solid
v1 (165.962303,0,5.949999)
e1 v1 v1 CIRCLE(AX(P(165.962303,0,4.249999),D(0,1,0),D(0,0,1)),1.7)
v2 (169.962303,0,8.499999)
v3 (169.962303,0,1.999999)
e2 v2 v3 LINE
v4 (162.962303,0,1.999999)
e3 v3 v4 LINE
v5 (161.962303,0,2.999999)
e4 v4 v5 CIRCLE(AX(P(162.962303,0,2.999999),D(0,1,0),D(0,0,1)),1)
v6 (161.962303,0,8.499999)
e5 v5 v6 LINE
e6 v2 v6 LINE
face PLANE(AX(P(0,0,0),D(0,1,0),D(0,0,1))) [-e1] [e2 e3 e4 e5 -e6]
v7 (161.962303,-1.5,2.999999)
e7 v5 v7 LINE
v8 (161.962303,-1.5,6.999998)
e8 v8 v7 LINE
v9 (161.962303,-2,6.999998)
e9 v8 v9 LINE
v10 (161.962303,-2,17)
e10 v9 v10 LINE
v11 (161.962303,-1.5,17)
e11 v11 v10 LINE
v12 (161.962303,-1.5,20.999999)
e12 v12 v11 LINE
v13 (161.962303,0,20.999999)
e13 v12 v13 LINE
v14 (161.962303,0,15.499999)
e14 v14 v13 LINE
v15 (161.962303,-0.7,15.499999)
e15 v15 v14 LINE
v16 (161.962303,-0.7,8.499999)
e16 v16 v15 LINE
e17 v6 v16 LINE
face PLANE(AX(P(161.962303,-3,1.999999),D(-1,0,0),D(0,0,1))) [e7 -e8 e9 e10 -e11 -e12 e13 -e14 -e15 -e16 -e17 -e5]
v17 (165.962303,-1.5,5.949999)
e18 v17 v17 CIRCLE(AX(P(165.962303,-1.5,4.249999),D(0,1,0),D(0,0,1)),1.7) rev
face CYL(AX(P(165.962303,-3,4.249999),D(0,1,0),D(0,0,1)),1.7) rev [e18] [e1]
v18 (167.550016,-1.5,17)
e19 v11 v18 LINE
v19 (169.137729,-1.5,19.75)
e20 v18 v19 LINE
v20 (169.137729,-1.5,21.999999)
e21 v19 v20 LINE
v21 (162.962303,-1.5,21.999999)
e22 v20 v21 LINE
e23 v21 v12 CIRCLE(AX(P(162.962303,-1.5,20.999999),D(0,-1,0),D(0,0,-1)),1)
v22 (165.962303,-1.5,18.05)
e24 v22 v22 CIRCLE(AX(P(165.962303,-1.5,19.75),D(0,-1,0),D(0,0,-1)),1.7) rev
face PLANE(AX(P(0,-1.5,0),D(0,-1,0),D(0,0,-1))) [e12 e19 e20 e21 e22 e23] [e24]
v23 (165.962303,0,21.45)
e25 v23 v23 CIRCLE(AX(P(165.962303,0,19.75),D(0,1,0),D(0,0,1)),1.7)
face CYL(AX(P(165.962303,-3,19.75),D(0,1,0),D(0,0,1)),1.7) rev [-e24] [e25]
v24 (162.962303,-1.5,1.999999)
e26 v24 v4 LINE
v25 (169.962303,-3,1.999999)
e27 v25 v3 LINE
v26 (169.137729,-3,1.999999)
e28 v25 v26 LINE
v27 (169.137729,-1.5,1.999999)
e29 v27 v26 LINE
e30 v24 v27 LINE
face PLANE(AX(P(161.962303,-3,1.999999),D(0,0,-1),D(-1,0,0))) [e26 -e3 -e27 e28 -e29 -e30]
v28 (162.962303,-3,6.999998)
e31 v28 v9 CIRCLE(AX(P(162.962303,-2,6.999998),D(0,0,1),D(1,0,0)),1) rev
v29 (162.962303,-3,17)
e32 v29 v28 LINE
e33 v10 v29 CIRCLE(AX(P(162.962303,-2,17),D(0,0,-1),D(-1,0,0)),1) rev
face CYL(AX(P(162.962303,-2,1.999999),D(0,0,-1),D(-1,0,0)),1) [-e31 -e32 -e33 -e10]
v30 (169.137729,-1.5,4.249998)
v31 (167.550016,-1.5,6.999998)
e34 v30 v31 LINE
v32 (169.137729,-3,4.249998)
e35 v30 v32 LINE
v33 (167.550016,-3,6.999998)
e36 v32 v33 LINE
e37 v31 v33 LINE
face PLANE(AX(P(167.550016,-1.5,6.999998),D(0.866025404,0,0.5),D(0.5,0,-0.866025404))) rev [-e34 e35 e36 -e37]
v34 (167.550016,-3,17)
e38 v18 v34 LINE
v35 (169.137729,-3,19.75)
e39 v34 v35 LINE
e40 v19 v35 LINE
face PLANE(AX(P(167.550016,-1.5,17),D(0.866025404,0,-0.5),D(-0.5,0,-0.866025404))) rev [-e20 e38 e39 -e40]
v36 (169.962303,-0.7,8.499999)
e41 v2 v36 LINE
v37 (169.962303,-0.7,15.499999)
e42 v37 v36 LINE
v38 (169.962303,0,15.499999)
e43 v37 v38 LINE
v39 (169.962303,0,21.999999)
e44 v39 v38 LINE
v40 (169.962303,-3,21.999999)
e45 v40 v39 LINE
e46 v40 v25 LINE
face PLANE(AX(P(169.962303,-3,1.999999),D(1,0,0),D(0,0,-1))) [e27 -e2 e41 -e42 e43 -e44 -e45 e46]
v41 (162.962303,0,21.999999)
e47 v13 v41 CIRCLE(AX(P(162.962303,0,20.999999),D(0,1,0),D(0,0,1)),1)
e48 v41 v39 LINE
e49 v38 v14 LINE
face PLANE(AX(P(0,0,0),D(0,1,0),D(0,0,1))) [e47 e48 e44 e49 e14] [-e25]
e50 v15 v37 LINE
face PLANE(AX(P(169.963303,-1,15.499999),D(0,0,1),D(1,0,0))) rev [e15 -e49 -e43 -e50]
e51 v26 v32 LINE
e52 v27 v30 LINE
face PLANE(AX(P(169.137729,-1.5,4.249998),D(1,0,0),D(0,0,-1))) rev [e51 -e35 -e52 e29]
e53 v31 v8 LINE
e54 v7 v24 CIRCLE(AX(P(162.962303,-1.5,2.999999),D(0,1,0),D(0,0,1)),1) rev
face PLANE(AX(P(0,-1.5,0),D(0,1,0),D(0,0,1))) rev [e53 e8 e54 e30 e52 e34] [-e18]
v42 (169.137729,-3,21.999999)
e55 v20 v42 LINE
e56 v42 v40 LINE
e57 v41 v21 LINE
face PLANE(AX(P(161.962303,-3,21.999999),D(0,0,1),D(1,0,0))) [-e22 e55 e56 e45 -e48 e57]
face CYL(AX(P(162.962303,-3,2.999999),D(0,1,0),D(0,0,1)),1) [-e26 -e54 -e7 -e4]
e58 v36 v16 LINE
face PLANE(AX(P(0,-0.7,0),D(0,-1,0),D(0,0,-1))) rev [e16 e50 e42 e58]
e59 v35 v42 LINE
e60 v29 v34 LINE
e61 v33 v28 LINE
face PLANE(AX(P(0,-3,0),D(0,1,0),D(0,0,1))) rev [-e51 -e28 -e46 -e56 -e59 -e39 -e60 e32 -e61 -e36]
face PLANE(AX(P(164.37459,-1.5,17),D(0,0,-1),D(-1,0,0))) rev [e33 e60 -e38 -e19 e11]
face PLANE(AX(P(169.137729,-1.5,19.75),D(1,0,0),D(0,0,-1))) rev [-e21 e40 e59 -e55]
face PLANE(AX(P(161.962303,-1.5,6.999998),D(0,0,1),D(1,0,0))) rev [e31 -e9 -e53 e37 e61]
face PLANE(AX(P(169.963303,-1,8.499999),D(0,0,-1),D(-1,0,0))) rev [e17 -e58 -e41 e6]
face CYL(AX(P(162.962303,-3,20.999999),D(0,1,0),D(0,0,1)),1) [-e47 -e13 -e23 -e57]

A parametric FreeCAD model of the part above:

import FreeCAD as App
import Part
import Sketcher

V = App.Vector
Q = App.Units.Quantity


def edges_at(feature, points):
    """Names of the edges that pass closest to the given points."""
    edges = feature.Shape.Edges
    near = lambda p: min(range(len(edges)), key=lambda i: edges[i].distToShape(Part.Vertex(*p))[0])
    return sorted({f"Edge{near(p) + 1}" for p in points})


def add_polygon(sketch, points):
    """Adds a closed chain of lines whose ends are joined by coincident constraints."""
    first, n = sketch.GeometryCount, len(points)
    for a, b in zip(points, points[1:] + points[:1]):
        sketch.addGeometry(Part.LineSegment(App.Vector(*a, 0), App.Vector(*b, 0)), False)
    for i in range(n):
        sketch.addConstraint(Sketcher.Constraint("Coincident", first + i, 2, first + (i + 1) % n, 1))

doc = App.newDocument("Part")
body = doc.addObject("PartDesign::Body", "Body")

# Sketch on XZ plane
sketch1 = body.newObject("Sketcher::SketchObject", "Sketch")
sketch1.AttachmentSupport = (doc.getObject("XZ_Plane"), [""])
sketch1.MapMode = "FlatFace"
add_polygon(sketch1, [(161.962303, 1.999999), (161.962303, 21.999999), (169.962303, 21.999999), (169.962303, 1.999999)])  # lines 0-3
sketch1.addGeometry(Part.Circle(V(165.962303, 19.75, 0), V(0, 0, 1), 1.7), False)  # 4
sketch1.addGeometry(Part.Circle(V(165.962303, 4.249999, 0), V(0, 0, 1), 1.7), False)  # 5
sketch1.addConstraint(Sketcher.Constraint("Vertical", 0))
sketch1.addConstraint(Sketcher.Constraint("Horizontal", 1))
sketch1.addConstraint(Sketcher.Constraint("Vertical", 2))
sketch1.addConstraint(Sketcher.Constraint("Horizontal", 3))
sketch1.addConstraint(Sketcher.Constraint("Equal", 4, 5))
sketch1.addConstraint(Sketcher.Constraint("Vertical", 4, 3, 5, 3))
sketch1.addConstraint(Sketcher.Constraint("Diameter", 4, Q("3.4 mm")))
sketch1.addConstraint(Sketcher.Constraint("DistanceX", 1, 1, 1, 2, Q("8 mm")))
sketch1.addConstraint(Sketcher.Constraint("DistanceY", 0, 1, 0, 2, Q("20 mm")))
sketch1.addConstraint(Sketcher.Constraint("DistanceY", -1, 1, 0, 2, Q("21.999999 mm")))
sketch1.addConstraint(Sketcher.Constraint("DistanceX", 0, 2, 4, 3, Q("4 mm")))
sketch1.addConstraint(Sketcher.Constraint("DistanceY", 5, 3, 4, 3, Q("15.500001 mm")))
sketch1.addConstraint(Sketcher.Constraint("DistanceY", -1, 1, 4, 3, Q("19.75 mm")))
sketch1.addConstraint(Sketcher.Constraint("DistanceX", -1, 1, 4, 3, Q("165.962303 mm")))
pad1 = body.newObject("PartDesign::Pad", "Pad")
pad1.Profile = sketch1
pad1.Length = 3

# Sketch on XZ plane
sketch2 = body.newObject("Sketcher::SketchObject", "Sketch001")
sketch2.AttachmentSupport = (doc.getObject("XZ_Plane"), [""])
sketch2.MapMode = "FlatFace"
sketch2.AttachmentOffset = App.Placement(V(0, 0, 3), App.Rotation())
add_polygon(sketch2, [(167.550016, 17), (169.137729, 19.75), (169.137729, 21.999999), (161.962303, 21.999999), (161.962303, 17)])  # lines 0-4
add_polygon(sketch2, [(167.550016, 6.999998), (161.962303, 6.999998), (161.962303, 1.999999), (169.137729, 1.999999), (169.137729, 4.249998)])  # lines 5-9
sketch2.addConstraint(Sketcher.Constraint("Vertical", 1))
sketch2.addConstraint(Sketcher.Constraint("Horizontal", 2))
sketch2.addConstraint(Sketcher.Constraint("Vertical", 3))
sketch2.addConstraint(Sketcher.Constraint("Horizontal", 4))
sketch2.addConstraint(Sketcher.Constraint("Horizontal", 5))
sketch2.addConstraint(Sketcher.Constraint("Vertical", 6))
sketch2.addConstraint(Sketcher.Constraint("Horizontal", 7))
sketch2.addConstraint(Sketcher.Constraint("Vertical", 8))
sketch2.addConstraint(Sketcher.Constraint("Vertical", 3, 2, 5, 2))
sketch2.addConstraint(Sketcher.Constraint("Vertical", 1, 2, 7, 2))
sketch2.addConstraint(Sketcher.Constraint("Vertical", 4, 2, 9, 2))
sketch2.addConstraint(Sketcher.Constraint("Equal", 3, 6))
sketch2.addConstraint(Sketcher.Constraint("Equal", 1, 8))
sketch2.addConstraint(Sketcher.Constraint("DistanceY", 3, 2, 3, 1, Q("4.999999 mm")))
sketch2.addConstraint(Sketcher.Constraint("Angle", 0, Q("60 deg")))
sketch2.addConstraint(Sketcher.Constraint("DistanceY", -1, 1, 1, 2, Q("21.999999 mm")))
sketch2.addConstraint(Sketcher.Constraint("DistanceY", -1, 1, 6, 2, Q("1.999999 mm")))
sketch2.addConstraint(Sketcher.Constraint("DistanceY", 1, 1, 1, 2, Q("2.249999 mm")))
sketch2.addConstraint(Sketcher.Constraint("DistanceX", 2, 2, 2, 1, Q("7.175426 mm")))
sketch2.addConstraint(Sketcher.Constraint("DistanceX", -1, 1, 0, 2, Q("169.137729 mm")))
pocket1 = body.newObject("PartDesign::Pocket", "Pocket")
pocket1.Profile = sketch2
pocket1.Length = 1.5

# Sketch on YZ plane
sketch3 = body.newObject("Sketcher::SketchObject", "Sketch002")
sketch3.AttachmentSupport = (doc.getObject("YZ_Plane"), [""])
sketch3.MapMode = "FlatFace"
sketch3.AttachmentOffset = App.Placement(V(0, 0, 161.962303), App.Rotation())
add_polygon(sketch3, [(0, 8.499999), (-1, 8.499999), (-1, 15.499999), (0, 15.499999)])  # lines 0-3
sketch3.addConstraint(Sketcher.Constraint("Horizontal", 0))
sketch3.addConstraint(Sketcher.Constraint("Vertical", 1))
sketch3.addConstraint(Sketcher.Constraint("Horizontal", 2))
sketch3.addConstraint(Sketcher.Constraint("Vertical", 3))
sketch3.addConstraint(Sketcher.Constraint("PointOnObject", 2, 2, -2))
sketch3.addConstraint(Sketcher.Constraint("DistanceX", 0, 2, 0, 1, Q("1 mm")))
sketch3.addConstraint(Sketcher.Constraint("DistanceY", 1, 1, 1, 2, Q("7 mm")))
sketch3.addConstraint(Sketcher.Constraint("DistanceY", -1, 1, 0, 2, Q("8.499999 mm")))
pocket2 = body.newObject("PartDesign::Pocket", "Pocket001")
pocket2.Profile = sketch3
pocket2.Type = "UpToFirst"
pocket2.Reversed = True
doc.recompute()

fillet = body.newObject("PartDesign::Fillet", "Fillet")
fillet.Base = (pocket2, edges_at(pocket2, [(161.962, -0.75, 22), (161.962, -3, 12), (161.962, -0.75, 2)]))
fillet.Radius = 1

# Sketch on XZ plane
sketch4 = body.newObject("Sketcher::SketchObject", "Sketch003")
sketch4.AttachmentSupport = (doc.getObject("XZ_Plane"), [""])
sketch4.MapMode = "FlatFace"
sketch4.AttachmentOffset = App.Placement(V(0, 0, 1), App.Rotation())
add_polygon(sketch4, [(161.962303, 8.499999), (161.962303, 15.499999), (169.962303, 15.499999), (169.962303, 8.499999)])  # lines 0-3
sketch4.addConstraint(Sketcher.Constraint("Vertical", 0))
sketch4.addConstraint(Sketcher.Constraint("Horizontal", 1))
sketch4.addConstraint(Sketcher.Constraint("Vertical", 2))
sketch4.addConstraint(Sketcher.Constraint("Horizontal", 3))
sketch4.addConstraint(Sketcher.Constraint("DistanceX", 1, 1, 1, 2, Q("8 mm")))
sketch4.addConstraint(Sketcher.Constraint("DistanceY", 0, 1, 0, 2, Q("7 mm")))
sketch4.addConstraint(Sketcher.Constraint("DistanceY", -1, 1, 0, 2, Q("15.499999 mm")))
sketch4.addConstraint(Sketcher.Constraint("DistanceX", -1, 1, 0, 2, Q("161.962303 mm")))
pad2 = body.newObject("PartDesign::Pad", "Pad001")
pad2.Profile = sketch4
pad2.Length = 0.3
pad2.Reversed = True

doc.recompute()
